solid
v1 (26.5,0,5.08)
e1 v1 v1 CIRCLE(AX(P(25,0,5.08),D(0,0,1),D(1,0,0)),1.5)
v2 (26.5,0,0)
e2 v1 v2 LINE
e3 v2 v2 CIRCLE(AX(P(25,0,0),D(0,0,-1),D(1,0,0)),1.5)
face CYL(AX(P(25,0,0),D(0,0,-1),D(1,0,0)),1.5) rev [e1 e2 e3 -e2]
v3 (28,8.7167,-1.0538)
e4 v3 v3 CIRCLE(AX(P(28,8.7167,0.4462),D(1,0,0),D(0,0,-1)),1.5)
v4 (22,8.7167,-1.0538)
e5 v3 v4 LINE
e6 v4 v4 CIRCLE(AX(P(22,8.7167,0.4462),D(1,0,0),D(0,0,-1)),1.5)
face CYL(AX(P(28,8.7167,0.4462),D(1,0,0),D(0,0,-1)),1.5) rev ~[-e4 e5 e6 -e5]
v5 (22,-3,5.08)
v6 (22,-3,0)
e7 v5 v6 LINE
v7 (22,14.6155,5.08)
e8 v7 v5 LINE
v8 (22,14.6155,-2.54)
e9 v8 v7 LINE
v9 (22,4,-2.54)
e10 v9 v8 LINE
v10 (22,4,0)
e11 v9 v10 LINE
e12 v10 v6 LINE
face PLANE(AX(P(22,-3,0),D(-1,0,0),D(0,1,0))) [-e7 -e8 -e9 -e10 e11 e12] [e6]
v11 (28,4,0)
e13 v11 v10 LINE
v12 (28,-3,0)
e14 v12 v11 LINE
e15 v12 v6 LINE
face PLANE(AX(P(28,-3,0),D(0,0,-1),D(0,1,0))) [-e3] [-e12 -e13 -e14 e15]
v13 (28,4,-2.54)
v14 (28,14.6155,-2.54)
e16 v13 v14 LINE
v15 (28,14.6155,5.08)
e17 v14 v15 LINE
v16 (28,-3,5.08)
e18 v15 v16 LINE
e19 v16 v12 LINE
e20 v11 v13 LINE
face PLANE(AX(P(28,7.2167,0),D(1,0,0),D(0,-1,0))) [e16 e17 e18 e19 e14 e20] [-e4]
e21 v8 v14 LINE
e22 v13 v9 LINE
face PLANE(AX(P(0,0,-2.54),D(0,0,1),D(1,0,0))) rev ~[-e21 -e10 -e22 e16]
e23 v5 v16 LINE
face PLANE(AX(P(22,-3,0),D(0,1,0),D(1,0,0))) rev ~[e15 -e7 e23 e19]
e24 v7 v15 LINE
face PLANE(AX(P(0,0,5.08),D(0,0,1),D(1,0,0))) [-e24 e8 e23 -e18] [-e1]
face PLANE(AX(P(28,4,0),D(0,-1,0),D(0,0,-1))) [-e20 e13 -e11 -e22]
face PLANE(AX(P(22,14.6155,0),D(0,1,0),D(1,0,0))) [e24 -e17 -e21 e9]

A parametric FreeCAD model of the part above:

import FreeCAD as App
import Part
import Sketcher
from FreeCAD import Vector
Q = App.Units.Quantity


def add_polygon(sketch, points):
    """Adds a closed chain of lines whose ends are joined by coincident constraints."""
    first, n = sketch.GeometryCount, len(points)
    for a, b in zip(points, points[1:] + points[:1]):
        sketch.addGeometry(Part.LineSegment(App.Vector(*a, 0), App.Vector(*b, 0)), False)
    for i in range(n):
        sketch.addConstraint(Sketcher.Constraint("Coincident", first + i, 2, first + (i + 1) % n, 1))

doc = App.newDocument("Part")
body = doc.addObject("PartDesign::Body", "Body")

sketch1 = body.newObject("Sketcher::SketchObject", "Sketch")
sketch1.AttachmentSupport = (doc.getObject("XY_Plane"), [""])
sketch1.MapMode = "FlatFace"
add_polygon(sketch1, [(28, -3), (28, 14.6), (22, 14.6), (22, -3)])
sketch1.addGeometry(Part.Circle(Vector(25, 0, 0), Vector(0, 0, 1), 1.5), False)
sketch1.addConstraint([
    Sketcher.Constraint("Vertical", 0),
    Sketcher.Constraint("Horizontal", 1),
    Sketcher.Constraint("Vertical", 2),
    Sketcher.Constraint("Horizontal", 3),
    Sketcher.Constraint("PointOnObject", 4, 3, -1),
    Sketcher.Constraint("Diameter", 4, Q("0.1181 in")),
    Sketcher.Constraint("DistanceX", 1, 2, 1, 1, 6.0),
    Sketcher.Constraint("DistanceY", 0, 1, 0, 2, 17.6155),
    Sketcher.Constraint("DistanceY", 2, 2, -1, 1, Q("0.1181 in")),
    Sketcher.Constraint("DistanceX", 4, 3, 0, 2, Q("0.1181 in")),
    Sketcher.Constraint("DistanceX", -1, 1, 4, 3, 25.0),
])
pad1 = body.newObject("PartDesign::Pad", "Pad")
pad1.Profile = sketch1
pad1.Type = "TwoLengths"
pad1.Length = Q("0.2 in")
pad1.Length2 = Q("0.1 in")

sketch2 = body.newObject("Sketcher::SketchObject", "Sketch001")
sketch2.AttachmentSupport = (doc.getObject("YZ_Plane"), [""])
sketch2.MapMode = "FlatFace"
sketch2.AttachmentOffset = App.Placement(Vector(0, 0, 28), App.Rotation())
add_polygon(sketch2, [(4, 0), (-3, 0), (-3, -2.5), (4, -2.5)])
sketch2.addGeometry(Part.Circle(Vector(8.7, 0.4, 0), Vector(0, 0, 1), 1.5), False)
sketch2.addConstraint([
    Sketcher.Constraint("Horizontal", 0),
    Sketcher.Constraint("Vertical", 1),
    Sketcher.Constraint("Horizontal", 2),
    Sketcher.Constraint("Vertical", 3),
    Sketcher.Constraint("PointOnObject", 0, 2, -1),
    Sketcher.Constraint("DistanceY", 1, 2, 1, 1, Q("0.1 in")),
    Sketcher.Constraint("Diameter", 4, Q("0.1181 in")),
    Sketcher.Constraint("DistanceX", 0, 2, 0, 1, Q("0.2756 in")),
    Sketcher.Constraint("DistanceX", 0, 2, -1, 1, Q("0.1181 in")),
    Sketcher.Constraint("DistanceX", 2, 2, 4, 3, Q("0.1857 in")),
    Sketcher.Constraint("DistanceY", -1, 1, 4, 3, 0.4462),
])
pocket1 = body.newObject("PartDesign::Pocket", "Pocket")
pocket1.Profile = sketch2
pocket1.Length = Q("0.3 in")

doc.recompute()
